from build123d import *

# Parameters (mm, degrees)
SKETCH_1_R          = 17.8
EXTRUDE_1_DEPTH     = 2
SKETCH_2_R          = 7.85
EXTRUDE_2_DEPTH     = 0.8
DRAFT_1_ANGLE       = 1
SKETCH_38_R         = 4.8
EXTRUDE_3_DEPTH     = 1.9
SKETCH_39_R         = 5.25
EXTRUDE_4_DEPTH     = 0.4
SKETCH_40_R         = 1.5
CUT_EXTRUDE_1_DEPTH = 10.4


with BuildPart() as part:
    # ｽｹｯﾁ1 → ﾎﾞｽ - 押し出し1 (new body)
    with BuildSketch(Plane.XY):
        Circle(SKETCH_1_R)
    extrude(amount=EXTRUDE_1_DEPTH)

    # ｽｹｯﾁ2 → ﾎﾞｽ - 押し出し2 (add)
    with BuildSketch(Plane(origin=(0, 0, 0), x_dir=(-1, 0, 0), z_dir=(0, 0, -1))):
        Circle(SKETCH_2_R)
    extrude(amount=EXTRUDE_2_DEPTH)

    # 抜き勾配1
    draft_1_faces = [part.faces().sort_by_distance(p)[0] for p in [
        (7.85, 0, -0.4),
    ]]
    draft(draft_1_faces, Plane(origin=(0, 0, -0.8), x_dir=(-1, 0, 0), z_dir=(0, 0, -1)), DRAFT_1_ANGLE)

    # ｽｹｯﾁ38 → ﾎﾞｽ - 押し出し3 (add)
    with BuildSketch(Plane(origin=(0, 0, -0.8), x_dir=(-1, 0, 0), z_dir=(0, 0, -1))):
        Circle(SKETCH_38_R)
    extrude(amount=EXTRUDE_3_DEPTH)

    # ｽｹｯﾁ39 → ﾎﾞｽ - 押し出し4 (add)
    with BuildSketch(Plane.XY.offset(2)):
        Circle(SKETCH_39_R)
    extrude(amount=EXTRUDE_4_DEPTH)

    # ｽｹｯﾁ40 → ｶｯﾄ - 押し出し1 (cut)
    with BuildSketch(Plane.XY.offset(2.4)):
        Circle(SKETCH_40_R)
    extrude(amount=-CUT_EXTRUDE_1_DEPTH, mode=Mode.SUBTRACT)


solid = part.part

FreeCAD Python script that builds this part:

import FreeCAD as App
import Part
import Sketcher
from FreeCAD import Vector
Q = App.Units.Quantity


def faces_at(feature, points):
    """Names of the faces that lie closest to the given points."""
    faces = feature.Shape.Faces
    near = lambda p: min(range(len(faces)), key=lambda i: faces[i].distToShape(Part.Vertex(*p))[0])
    return sorted({f"Face{near(p) + 1}" for p in points})

doc = App.newDocument("Part")
body = doc.addObject("PartDesign::Body", "Body")

# Sketch on XY plane
sketch1 = body.newObject("Sketcher::SketchObject", "Sketch")
sketch1.AttachmentSupport = (doc.getObject("XY_Plane"), [""])
sketch1.MapMode = "FlatFace"
sketch1.addGeometry(Part.Circle(Vector(0, 0, 0), Vector(0, 0, 1), 18), False)
sketch1.addConstraint([
    Sketcher.Constraint("Coincident", 0, 3, -1, 1),
    Sketcher.Constraint("Diameter", 0, Q("35.6 mm")),
])
pad1 = body.newObject("PartDesign::Pad", "Pad")
pad1.Profile = sketch1
pad1.Length = 2

# Sketch on XY plane
sketch2 = body.newObject("Sketcher::SketchObject", "Sketch001")
sketch2.AttachmentSupport = (doc.getObject("XY_Plane"), [""])
sketch2.MapMode = "FlatFace"
sketch2.addGeometry(Part.Circle(Vector(0, 0, 0), Vector(0, 0, 1), 8), False)
sketch2.addConstraint([
    Sketcher.Constraint("Coincident", 0, 3, -1, 1),
    Sketcher.Constraint("Diameter", 0, Q("15.7 mm")),
])
pad2 = body.newObject("PartDesign::Pad", "Pad001")
pad2.Profile = sketch2
pad2.Length = 0.8
pad2.Reversed = True
doc.recompute()

datumplane = body.newObject("PartDesign::Plane", "DatumPlane")
datumplane.AttachmentSupport = (doc.getObject("XY_Plane"), [""])
datumplane.MapMode = "FlatFace"
datumplane.AttachmentOffset = App.Placement(Vector(0, 0, -0.8), App.Rotation())
draft = body.newObject("PartDesign::Draft", "Draft")
draft.Base = (pad2, faces_at(pad2, [(7.85, 0, -0.4)]))
draft.NeutralPlane = (datumplane, [""])
draft.Angle = 1
draft.Reversed = True

# Sketch on XY plane
sketch3 = body.newObject("Sketcher::SketchObject", "Sketch002")
sketch3.AttachmentSupport = (doc.getObject("XY_Plane"), [""])
sketch3.MapMode = "FlatFace"
sketch3.AttachmentOffset = App.Placement(Vector(0, 0, -0.8), App.Rotation())
sketch3.addGeometry(Part.Circle(Vector(0, 0, 0), Vector(0, 0, 1), 4.8), False)
sketch3.addConstraint([
    Sketcher.Constraint("Coincident", 0, 3, -1, 1),
    Sketcher.Constraint("Diameter", 0, Q("9.6 mm")),
])
pad3 = body.newObject("PartDesign::Pad", "Pad002")
pad3.Profile = sketch3
pad3.Length = 1.9
pad3.Reversed = True

# Sketch on XY plane
sketch4 = body.newObject("Sketcher::SketchObject", "Sketch003")
sketch4.AttachmentSupport = (doc.getObject("XY_Plane"), [""])
sketch4.MapMode = "FlatFace"
sketch4.AttachmentOffset = App.Placement(Vector(0, 0, 2), App.Rotation())
sketch4.addGeometry(Part.Circle(Vector(0, 0, 0), Vector(0, 0, 1), 5), False)
sketch4.addConstraint([
    Sketcher.Constraint("Coincident", 0, 3, -1, 1),
    Sketcher.Constraint("Diameter", 0, Q("10.5 mm")),
])
pad4 = body.newObject("PartDesign::Pad", "Pad003")
pad4.Profile = sketch4
pad4.Length = 0.4

# Sketch on XY plane
sketch5 = body.newObject("Sketcher::SketchObject", "Sketch004")
sketch5.AttachmentSupport = (doc.getObject("XY_Plane"), [""])
sketch5.MapMode = "FlatFace"
sketch5.AttachmentOffset = App.Placement(Vector(0, 0, 2.4), App.Rotation())
sketch5.addGeometry(Part.Circle(Vector(0, 0, 0), Vector(0, 0, 1), 1.5), False)
sketch5.addConstraint([
    Sketcher.Constraint("Coincident", 0, 3, -1, 1),
    Sketcher.Constraint("Diameter", 0, Q("3 mm")),
])
pocket1 = body.newObject("PartDesign::Pocket", "Pocket")
pocket1.Profile = sketch5
pocket1.Length = 10.4

doc.recompute()
